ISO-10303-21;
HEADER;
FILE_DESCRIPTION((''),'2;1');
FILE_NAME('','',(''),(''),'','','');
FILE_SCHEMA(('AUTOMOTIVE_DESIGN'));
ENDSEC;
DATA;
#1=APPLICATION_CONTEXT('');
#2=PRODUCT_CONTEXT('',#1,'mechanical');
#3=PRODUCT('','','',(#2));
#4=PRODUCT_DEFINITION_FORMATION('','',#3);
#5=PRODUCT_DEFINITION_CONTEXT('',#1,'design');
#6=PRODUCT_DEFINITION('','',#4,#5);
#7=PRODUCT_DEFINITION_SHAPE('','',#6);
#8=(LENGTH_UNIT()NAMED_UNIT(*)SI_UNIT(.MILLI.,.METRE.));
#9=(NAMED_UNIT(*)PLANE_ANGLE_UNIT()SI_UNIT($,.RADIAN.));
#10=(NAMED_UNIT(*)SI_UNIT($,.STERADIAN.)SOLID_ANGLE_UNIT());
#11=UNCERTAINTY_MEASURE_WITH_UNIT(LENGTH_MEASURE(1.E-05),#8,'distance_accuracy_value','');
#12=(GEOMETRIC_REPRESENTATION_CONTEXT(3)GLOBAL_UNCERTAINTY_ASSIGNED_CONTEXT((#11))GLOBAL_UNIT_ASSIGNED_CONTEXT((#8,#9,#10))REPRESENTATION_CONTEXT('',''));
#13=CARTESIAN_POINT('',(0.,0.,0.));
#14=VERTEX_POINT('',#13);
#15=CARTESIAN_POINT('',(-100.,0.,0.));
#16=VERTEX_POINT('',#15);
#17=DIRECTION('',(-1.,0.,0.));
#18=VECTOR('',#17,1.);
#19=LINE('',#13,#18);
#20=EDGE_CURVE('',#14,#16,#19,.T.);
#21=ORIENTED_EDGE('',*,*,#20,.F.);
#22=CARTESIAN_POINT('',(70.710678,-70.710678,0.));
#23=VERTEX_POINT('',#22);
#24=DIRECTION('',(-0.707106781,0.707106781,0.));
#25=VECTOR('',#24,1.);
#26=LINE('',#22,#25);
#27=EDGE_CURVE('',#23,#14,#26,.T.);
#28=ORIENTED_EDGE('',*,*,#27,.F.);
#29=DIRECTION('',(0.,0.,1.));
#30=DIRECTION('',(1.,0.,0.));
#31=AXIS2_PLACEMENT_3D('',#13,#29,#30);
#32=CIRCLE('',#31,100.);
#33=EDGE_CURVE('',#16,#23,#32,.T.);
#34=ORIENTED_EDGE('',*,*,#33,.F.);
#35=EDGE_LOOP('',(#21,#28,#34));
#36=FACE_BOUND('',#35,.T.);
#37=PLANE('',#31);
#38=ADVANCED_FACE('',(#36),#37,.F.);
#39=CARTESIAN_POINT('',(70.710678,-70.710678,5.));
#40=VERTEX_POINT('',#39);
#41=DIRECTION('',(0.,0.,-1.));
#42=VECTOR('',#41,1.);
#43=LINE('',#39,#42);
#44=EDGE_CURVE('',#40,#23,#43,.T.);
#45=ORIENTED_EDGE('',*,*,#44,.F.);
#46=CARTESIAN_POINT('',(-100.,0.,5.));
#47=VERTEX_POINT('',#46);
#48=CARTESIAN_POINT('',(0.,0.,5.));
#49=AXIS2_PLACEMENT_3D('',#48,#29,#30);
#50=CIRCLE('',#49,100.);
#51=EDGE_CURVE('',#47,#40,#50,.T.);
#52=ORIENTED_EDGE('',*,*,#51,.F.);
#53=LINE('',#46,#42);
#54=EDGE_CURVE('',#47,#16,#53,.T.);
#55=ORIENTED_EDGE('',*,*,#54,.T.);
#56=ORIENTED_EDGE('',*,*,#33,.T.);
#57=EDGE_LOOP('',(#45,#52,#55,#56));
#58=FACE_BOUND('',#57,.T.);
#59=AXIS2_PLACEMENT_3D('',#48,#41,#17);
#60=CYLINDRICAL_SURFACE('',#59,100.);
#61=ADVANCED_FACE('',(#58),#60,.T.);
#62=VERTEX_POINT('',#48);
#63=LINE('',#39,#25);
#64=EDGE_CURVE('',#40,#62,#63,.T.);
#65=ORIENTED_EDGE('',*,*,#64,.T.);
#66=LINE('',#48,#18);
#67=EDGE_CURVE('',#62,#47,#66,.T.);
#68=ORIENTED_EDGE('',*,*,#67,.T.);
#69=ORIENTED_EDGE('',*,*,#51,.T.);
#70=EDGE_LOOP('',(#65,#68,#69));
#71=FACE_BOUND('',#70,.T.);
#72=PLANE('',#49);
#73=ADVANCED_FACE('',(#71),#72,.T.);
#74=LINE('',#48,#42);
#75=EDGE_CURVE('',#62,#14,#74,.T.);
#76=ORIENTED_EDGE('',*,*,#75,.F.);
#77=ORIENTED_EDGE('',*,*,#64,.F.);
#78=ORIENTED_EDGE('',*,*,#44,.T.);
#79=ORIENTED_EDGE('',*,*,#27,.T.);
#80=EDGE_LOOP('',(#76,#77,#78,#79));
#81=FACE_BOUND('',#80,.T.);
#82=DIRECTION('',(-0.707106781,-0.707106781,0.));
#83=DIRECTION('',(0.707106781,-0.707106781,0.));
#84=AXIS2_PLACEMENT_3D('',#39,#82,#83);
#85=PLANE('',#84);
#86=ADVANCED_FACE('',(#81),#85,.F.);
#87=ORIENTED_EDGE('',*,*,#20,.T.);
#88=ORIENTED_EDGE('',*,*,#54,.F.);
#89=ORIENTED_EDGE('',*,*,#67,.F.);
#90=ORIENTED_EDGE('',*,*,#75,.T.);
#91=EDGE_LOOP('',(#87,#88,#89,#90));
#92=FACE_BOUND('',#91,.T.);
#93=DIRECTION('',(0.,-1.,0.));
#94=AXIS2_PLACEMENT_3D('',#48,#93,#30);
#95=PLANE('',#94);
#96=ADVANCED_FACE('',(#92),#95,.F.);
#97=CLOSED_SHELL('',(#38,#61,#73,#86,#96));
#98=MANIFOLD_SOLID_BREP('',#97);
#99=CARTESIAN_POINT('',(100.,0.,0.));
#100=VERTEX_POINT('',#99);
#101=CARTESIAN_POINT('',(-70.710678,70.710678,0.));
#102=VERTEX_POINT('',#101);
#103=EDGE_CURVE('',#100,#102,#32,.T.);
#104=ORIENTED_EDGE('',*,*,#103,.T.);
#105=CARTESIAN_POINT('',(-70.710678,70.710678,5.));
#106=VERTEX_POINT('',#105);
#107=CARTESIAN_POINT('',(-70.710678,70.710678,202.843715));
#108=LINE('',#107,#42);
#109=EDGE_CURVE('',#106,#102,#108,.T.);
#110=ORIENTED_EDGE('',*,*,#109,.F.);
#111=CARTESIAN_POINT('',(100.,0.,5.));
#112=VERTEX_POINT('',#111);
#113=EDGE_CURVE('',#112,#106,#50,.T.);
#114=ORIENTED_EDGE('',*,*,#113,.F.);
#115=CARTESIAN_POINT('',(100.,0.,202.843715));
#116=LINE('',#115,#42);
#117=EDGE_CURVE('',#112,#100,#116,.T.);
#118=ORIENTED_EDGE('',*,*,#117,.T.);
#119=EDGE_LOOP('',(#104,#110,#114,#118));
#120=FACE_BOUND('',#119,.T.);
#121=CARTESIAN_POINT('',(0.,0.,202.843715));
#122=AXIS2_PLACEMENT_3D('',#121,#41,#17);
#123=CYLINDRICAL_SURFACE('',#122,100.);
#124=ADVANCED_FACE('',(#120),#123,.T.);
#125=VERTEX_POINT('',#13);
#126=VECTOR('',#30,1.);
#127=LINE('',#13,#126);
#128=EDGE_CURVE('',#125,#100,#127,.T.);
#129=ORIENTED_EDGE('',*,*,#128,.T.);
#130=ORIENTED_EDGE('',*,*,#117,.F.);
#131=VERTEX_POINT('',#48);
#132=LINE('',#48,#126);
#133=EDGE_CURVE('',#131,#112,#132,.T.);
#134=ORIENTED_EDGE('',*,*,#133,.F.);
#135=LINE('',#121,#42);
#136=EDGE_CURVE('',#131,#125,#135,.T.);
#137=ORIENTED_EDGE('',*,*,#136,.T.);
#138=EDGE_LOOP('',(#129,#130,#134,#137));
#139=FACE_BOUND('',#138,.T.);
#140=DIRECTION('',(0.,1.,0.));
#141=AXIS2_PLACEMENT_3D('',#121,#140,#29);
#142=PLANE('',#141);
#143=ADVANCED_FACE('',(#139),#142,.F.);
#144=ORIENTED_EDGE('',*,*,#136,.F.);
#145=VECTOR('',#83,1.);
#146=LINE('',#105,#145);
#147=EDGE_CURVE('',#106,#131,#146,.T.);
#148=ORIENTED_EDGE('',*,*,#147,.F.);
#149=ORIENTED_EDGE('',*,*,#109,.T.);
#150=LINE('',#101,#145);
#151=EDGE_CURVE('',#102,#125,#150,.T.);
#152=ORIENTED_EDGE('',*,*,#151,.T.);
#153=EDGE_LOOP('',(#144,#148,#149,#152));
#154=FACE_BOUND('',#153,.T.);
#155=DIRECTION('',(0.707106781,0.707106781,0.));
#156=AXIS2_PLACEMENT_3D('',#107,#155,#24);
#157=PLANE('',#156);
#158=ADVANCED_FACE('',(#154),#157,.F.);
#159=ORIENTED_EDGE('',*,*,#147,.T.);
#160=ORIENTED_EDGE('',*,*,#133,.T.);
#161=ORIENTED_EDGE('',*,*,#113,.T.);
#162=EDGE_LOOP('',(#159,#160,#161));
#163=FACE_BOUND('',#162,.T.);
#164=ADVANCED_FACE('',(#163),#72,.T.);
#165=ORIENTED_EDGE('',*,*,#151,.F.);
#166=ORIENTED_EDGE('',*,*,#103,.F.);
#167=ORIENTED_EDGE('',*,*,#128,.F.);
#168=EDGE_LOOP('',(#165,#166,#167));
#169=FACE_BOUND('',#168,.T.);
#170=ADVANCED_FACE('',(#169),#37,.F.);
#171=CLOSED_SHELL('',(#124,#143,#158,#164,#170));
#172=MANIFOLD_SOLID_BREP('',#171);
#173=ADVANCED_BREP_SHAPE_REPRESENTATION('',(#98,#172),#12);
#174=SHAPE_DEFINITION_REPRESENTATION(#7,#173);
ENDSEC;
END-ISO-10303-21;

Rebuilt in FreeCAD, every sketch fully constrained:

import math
import FreeCAD as App
import Part
import Sketcher

V = App.Vector
Q = App.Units.Quantity

doc = App.newDocument("Part")
params = doc.addObject("Spreadsheet::Sheet", "Params")
for row, (alias, value) in enumerate([
    ("sketch1_radius", "100 mm"),
    ("pad1_length", "5 mm"),
    ("sketch2_radius", "100 mm"),
    ("pad2_length", "5 mm"),
], start=1):
    params.set(f"A{row}", alias)
    params.set(f"B{row}", "=" + value)
    params.setAlias(f"B{row}", alias)

body = doc.addObject("PartDesign::Body", "Body")

sketch1 = body.newObject("Sketcher::SketchObject", "Sketch")
sketch1.AttachmentSupport = (doc.getObject("XY_Plane"), [""])
sketch1.MapMode = "FlatFace"
sketch1.addGeometry([
    Part.LineSegment(V(0, 0, 0), V(-100, 0, 0)),
    Part.ArcOfCircle(Part.Circle(V(0, 0, 0), V(0, 0, 1), 100), math.radians(180), math.radians(315)),
    Part.LineSegment(V(71, -71, 0), V(0, 0, 0)),
], False)
sketch1.addConstraint([
    Sketcher.Constraint("Coincident", 0, 2, 1, 1),
    Sketcher.Constraint("Coincident", 1, 2, 2, 1),
    Sketcher.Constraint("Coincident", 2, 2, 0, 1),
    Sketcher.Constraint("Horizontal", 0),
    Sketcher.Constraint("Coincident", 1, 3, -1, 1),
    Sketcher.Constraint("Coincident", 2, 2, -1, 1),
    Sketcher.Constraint("Radius", 1, Q("100 mm")),
    Sketcher.Constraint("Angle", 2, Q("135 deg")),
])
sketch1.setExpression("Constraints[6]", "Params.sketch1_radius")
pad1 = body.newObject("PartDesign::Pad", "Pad")
pad1.Profile = sketch1
pad1.setExpression("Length", "Params.pad1_length")
body2 = doc.addObject("PartDesign::Body", "Body001")

sketch2 = body2.newObject("Sketcher::SketchObject", "Sketch001")
sketch2.AttachmentSupport = (doc.getObject("XY_Plane001"), [""])
sketch2.MapMode = "FlatFace"
sketch2.addGeometry([
    Part.LineSegment(V(0, 0, 0), V(100, 0, 0)),
    Part.ArcOfCircle(Part.Circle(V(0, 0, 0), V(0, 0, 1), 100), math.radians(0), math.radians(135)),
    Part.LineSegment(V(-71, 71, 0), V(0, 0, 0)),
], False)
sketch2.addConstraint([
    Sketcher.Constraint("Coincident", 0, 2, 1, 1),
    Sketcher.Constraint("Coincident", 1, 2, 2, 1),
    Sketcher.Constraint("Coincident", 2, 2, 0, 1),
    Sketcher.Constraint("Horizontal", 0),
    Sketcher.Constraint("Coincident", 1, 3, -1, 1),
    Sketcher.Constraint("Coincident", 2, 2, -1, 1),
    Sketcher.Constraint("Radius", 1, Q("100 mm")),
    Sketcher.Constraint("Angle", 2, Q("-45 deg")),
])
sketch2.setExpression("Constraints[6]", "Params.sketch2_radius")
pad2 = body2.newObject("PartDesign::Pad", "Pad001")
pad2.Profile = sketch2
pad2.setExpression("Length", "Params.pad2_length")

doc.recompute()
